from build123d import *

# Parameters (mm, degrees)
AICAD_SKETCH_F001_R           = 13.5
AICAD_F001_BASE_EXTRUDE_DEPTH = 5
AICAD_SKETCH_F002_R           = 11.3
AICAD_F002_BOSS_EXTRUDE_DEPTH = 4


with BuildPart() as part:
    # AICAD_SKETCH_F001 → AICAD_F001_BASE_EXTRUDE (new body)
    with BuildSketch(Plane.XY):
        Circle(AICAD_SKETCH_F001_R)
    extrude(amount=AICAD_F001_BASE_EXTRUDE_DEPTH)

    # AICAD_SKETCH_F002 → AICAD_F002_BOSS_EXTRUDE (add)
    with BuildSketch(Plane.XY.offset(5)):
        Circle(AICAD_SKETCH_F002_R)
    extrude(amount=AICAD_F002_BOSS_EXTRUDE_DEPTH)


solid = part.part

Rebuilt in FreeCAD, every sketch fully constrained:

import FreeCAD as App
import Part
import Sketcher

V = App.Vector
Q = App.Units.Quantity

doc = App.newDocument("Part")
params = doc.addObject("Spreadsheet::Sheet", "Params")
for row, (alias, value) in enumerate([
    ("sketch1_diameter", "27 mm"),
    ("pad1_length", "5 mm"),
    ("sketch2_diameter", "22.6 mm"),
    ("pad2_length", "4 mm"),
], start=1):
    params.set(f"A{row}", alias)
    params.set(f"B{row}", "=" + value)
    params.setAlias(f"B{row}", alias)

body = doc.addObject("PartDesign::Body", "Body")

# Sketch on XY plane
sketch1 = body.newObject("Sketcher::SketchObject", "Sketch")
sketch1.AttachmentSupport = (doc.getObject("XY_Plane"), [""])
sketch1.MapMode = "FlatFace"
sketch1.addGeometry(Part.Circle(V(0, 0, 0), V(0, 0, 1), 14), False)
sketch1.addConstraint([
    Sketcher.Constraint("Coincident", 0, 3, -1, 1),
    Sketcher.Constraint("Diameter", 0, Q("27 mm")),
])
sketch1.setExpression("Constraints[1]", "Params.sketch1_diameter")
pad1 = body.newObject("PartDesign::Pad", "Pad")
pad1.Profile = sketch1
pad1.setExpression("Length", "Params.pad1_length")

# Sketch on XY plane
sketch2 = body.newObject("Sketcher::SketchObject", "Sketch001")
sketch2.AttachmentSupport = (doc.getObject("XY_Plane"), [""])
sketch2.MapMode = "FlatFace"
sketch2.AttachmentOffset = App.Placement(V(0, 0, 5), App.Rotation())
sketch2.addGeometry(Part.Circle(V(0, 0, 0), V(0, 0, 1), 11), False)
sketch2.addConstraint([
    Sketcher.Constraint("Coincident", 0, 3, -1, 1),
    Sketcher.Constraint("Diameter", 0, Q("22.6 mm")),
])
sketch2.setExpression("Constraints[1]", "Params.sketch2_diameter")
pad2 = body.newObject("PartDesign::Pad", "Pad001")
pad2.Profile = sketch2
pad2.setExpression("Length", "Params.pad2_length")

doc.recompute()
